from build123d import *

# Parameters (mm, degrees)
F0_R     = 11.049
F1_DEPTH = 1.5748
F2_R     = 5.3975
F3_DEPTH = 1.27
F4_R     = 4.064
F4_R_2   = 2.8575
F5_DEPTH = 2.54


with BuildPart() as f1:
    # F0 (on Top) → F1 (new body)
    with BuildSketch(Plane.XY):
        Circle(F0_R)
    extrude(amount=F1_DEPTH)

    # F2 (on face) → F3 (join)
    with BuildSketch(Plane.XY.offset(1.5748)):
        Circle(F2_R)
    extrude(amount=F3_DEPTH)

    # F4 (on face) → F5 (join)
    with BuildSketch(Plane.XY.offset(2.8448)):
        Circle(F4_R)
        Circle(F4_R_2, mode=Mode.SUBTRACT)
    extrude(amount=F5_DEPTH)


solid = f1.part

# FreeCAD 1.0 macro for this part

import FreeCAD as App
import Part
import Sketcher

V = App.Vector
Q = App.Units.Quantity

doc = App.newDocument("Part")
params = doc.addObject("Spreadsheet::Sheet", "Params")
for row, (alias, value) in enumerate([
    ("sketch1_diameter", "0.87 in"),
    ("pad1_length", "0.062 in"),
    ("sketch2_diameter", "0.425 in"),
    ("pad2_length", "0.05 in"),
    ("sketch3_diameter", "0.32 in"),
    ("sketch3_diameter2", "0.225 in"),
    ("pad3_length", "0.1 in"),
], start=1):
    params.set(f"A{row}", alias)
    params.set(f"B{row}", "=" + value)
    params.setAlias(f"B{row}", alias)

body = doc.addObject("PartDesign::Body", "Body")

sketch1 = body.newObject("Sketcher::SketchObject", "Sketch")
sketch1.AttachmentSupport = (doc.getObject("XY_Plane"), [""])
sketch1.MapMode = "FlatFace"
sketch1.addGeometry(Part.Circle(V(0, 0, 0), V(0, 0, 1), 11), False)
sketch1.addConstraint([
    Sketcher.Constraint("Coincident", 0, 3, -1, 1),
    Sketcher.Constraint("Diameter", 0, Q("0.87 in")),
])
sketch1.setExpression("Constraints[1]", "Params.sketch1_diameter")
pad1 = body.newObject("PartDesign::Pad", "Pad")
pad1.Profile = sketch1
pad1.setExpression("Length", "Params.pad1_length")

sketch2 = body.newObject("Sketcher::SketchObject", "Sketch001")
sketch2.AttachmentSupport = (doc.getObject("XY_Plane"), [""])
sketch2.MapMode = "FlatFace"
sketch2.AttachmentOffset = App.Placement(V(0, 0, 0.062 * 25.4), App.Rotation())
sketch2.addGeometry(Part.Circle(V(0, 0, 0), V(0, 0, 1), 5), False)
sketch2.addConstraint([
    Sketcher.Constraint("Coincident", 0, 3, -1, 1),
    Sketcher.Constraint("Diameter", 0, Q("0.425 in")),
])
sketch2.setExpression("Constraints[1]", "Params.sketch2_diameter")
pad2 = body.newObject("PartDesign::Pad", "Pad001")
pad2.Profile = sketch2
pad2.setExpression("Length", "Params.pad2_length")

sketch3 = body.newObject("Sketcher::SketchObject", "Sketch002")
sketch3.AttachmentSupport = (doc.getObject("XY_Plane"), [""])
sketch3.MapMode = "FlatFace"
sketch3.AttachmentOffset = App.Placement(V(0, 0, 0.112 * 25.4), App.Rotation())
sketch3.addGeometry([
    Part.Circle(V(0, 0, 0), V(0, 0, 1), 4.1),
    Part.Circle(V(0, 0, 0), V(0, 0, 1), 2.9),
], False)
sketch3.addConstraint([
    Sketcher.Constraint("Coincident", 0, 3, -1, 1),
    Sketcher.Constraint("Coincident", 1, 3, -1, 1),
    Sketcher.Constraint("Diameter", 0, Q("0.32 in")),
    Sketcher.Constraint("Diameter", 1, Q("0.225 in")),
])
sketch3.setExpression("Constraints[2]", "Params.sketch3_diameter")
sketch3.setExpression("Constraints[3]", "Params.sketch3_diameter2")
pad3 = body.newObject("PartDesign::Pad", "Pad002")
pad3.Profile = sketch3
pad3.setExpression("Length", "Params.pad3_length")

doc.recompute()
